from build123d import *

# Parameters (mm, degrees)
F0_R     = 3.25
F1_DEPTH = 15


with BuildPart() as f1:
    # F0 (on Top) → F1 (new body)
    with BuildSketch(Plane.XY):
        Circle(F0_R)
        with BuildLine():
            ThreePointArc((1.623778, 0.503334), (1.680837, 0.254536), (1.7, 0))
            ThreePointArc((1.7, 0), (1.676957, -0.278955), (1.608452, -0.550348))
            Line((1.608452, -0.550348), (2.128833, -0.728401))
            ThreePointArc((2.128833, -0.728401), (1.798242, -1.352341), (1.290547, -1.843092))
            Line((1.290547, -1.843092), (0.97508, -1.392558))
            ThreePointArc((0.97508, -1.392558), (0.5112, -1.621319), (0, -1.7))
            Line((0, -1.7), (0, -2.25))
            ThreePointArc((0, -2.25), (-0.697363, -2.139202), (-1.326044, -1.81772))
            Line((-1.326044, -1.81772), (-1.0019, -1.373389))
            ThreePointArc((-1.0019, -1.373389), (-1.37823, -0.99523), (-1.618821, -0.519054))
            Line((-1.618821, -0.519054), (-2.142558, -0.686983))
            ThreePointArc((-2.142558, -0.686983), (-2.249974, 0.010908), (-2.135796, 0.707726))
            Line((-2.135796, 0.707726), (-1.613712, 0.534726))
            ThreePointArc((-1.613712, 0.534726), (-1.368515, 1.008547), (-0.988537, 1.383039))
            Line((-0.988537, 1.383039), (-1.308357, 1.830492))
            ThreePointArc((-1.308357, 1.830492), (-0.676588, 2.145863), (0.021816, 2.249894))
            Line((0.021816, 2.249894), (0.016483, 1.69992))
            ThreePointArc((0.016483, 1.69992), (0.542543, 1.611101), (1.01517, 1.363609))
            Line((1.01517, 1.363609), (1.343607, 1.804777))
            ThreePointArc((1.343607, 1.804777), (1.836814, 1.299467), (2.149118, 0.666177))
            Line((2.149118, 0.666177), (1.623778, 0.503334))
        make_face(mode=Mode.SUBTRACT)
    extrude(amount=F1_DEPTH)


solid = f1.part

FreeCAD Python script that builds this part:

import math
import FreeCAD as App
import Part
import Sketcher
Q = App.Units.Quantity

doc = App.newDocument("Part")
body = doc.addObject("PartDesign::Body", "Body")

sketch1 = body.newObject("Sketcher::SketchObject", "Sketch")
sketch1.AttachmentSupport = (doc.getObject("XY_Plane"), [""])
sketch1.MapMode = "FlatFace"
sketch1.addGeometry(Part.Circle(App.Vector(0, 0, 0), App.Vector(0, 0, 1), 3.2), False)
sketch1.addGeometry(Part.LineSegment(App.Vector(2.1, 0.7, 0), App.Vector(1.6, 0.5, 0)), False)
sketch1.addGeometry(Part.ArcOfCircle(Part.Circle(App.Vector(0, 0, 0), App.Vector(0, 0, 1), 1.7), math.radians(0), math.radians(17.22)), False)
sketch1.addGeometry(Part.ArcOfCircle(Part.Circle(App.Vector(0, 0, 0), App.Vector(0, 0, 1), 1.7), math.radians(-18.89), math.radians(0)), False)
sketch1.addGeometry(Part.LineSegment(App.Vector(1.6, -0.6, 0), App.Vector(2.1, -0.7, 0)), False)
sketch1.addGeometry(Part.ArcOfCircle(Part.Circle(App.Vector(0, 0, 0), App.Vector(0, 0, 1), 2.2), math.radians(-55), math.radians(-19)), False)
sketch1.addGeometry(Part.LineSegment(App.Vector(1.3, -1.8, 0), App.Vector(1, -1.4, 0)), False)
sketch1.addGeometry(Part.ArcOfCircle(Part.Circle(App.Vector(0, 0, 0), App.Vector(0, 0, 1), 1.7), math.radians(-90), math.radians(-55)), False)
sketch1.addGeometry(Part.LineSegment(App.Vector(0, -1.7, 0), App.Vector(0, -2.2, 0)), False)
sketch1.addGeometry(Part.ArcOfCircle(Part.Circle(App.Vector(0, 0, 0), App.Vector(0, 0, 1), 2.2), math.radians(-126), math.radians(-90)), False)
sketch1.addGeometry(Part.LineSegment(App.Vector(-1.3, -1.8, 0), App.Vector(-1, -1.4, 0)), False)
sketch1.addGeometry(Part.ArcOfCircle(Part.Circle(App.Vector(0, 0, 0), App.Vector(0, 0, 1), 1.7), math.radians(-162), math.radians(-126)), False)
sketch1.addGeometry(Part.LineSegment(App.Vector(-1.6, -0.5, 0), App.Vector(-2.1, -0.7, 0)), False)
sketch1.addGeometry(Part.ArcOfCircle(Part.Circle(App.Vector(0, 0, 0), App.Vector(0, 0, 1), 2.2), math.radians(162), math.radians(198)), False)
sketch1.addGeometry(Part.LineSegment(App.Vector(-2.1, 0.7, 0), App.Vector(-1.6, 0.5, 0)), False)
sketch1.addGeometry(Part.ArcOfCircle(Part.Circle(App.Vector(0, 0, 0), App.Vector(0, 0, 1), 1.7), math.radians(126), math.radians(162)), False)
sketch1.addGeometry(Part.LineSegment(App.Vector(-1, 1.4, 0), App.Vector(-1.3, 1.8, 0)), False)
sketch1.addGeometry(Part.ArcOfCircle(Part.Circle(App.Vector(0, 0, 0), App.Vector(0, 0, 1), 2.2), math.radians(89), math.radians(126)), False)
sketch1.addGeometry(Part.LineSegment(App.Vector(0, 2.2, 0), App.Vector(0, 1.7, 0)), False)
sketch1.addGeometry(Part.ArcOfCircle(Part.Circle(App.Vector(0, 0, 0), App.Vector(0, 0, 1), 1.7), math.radians(53), math.radians(89)), False)
sketch1.addGeometry(Part.LineSegment(App.Vector(1, 1.4, 0), App.Vector(1.3, 1.8, 0)), False)
sketch1.addGeometry(Part.ArcOfCircle(Part.Circle(App.Vector(0, 0, 0), App.Vector(0, 0, 1), 2.2), math.radians(17), math.radians(53)), False)
sketch1.addConstraint(Sketcher.Constraint("Coincident", 1, 2, 2, 2))
sketch1.addConstraint(Sketcher.Constraint("Coincident", 2, 1, 3, 2))
sketch1.addConstraint(Sketcher.Constraint("Coincident", 3, 1, 4, 1))
sketch1.addConstraint(Sketcher.Constraint("Coincident", 4, 2, 5, 2))
sketch1.addConstraint(Sketcher.Constraint("Coincident", 5, 1, 6, 1))
sketch1.addConstraint(Sketcher.Constraint("Coincident", 6, 2, 7, 2))
sketch1.addConstraint(Sketcher.Constraint("Coincident", 7, 1, 8, 1))
sketch1.addConstraint(Sketcher.Constraint("Coincident", 8, 2, 9, 2))
sketch1.addConstraint(Sketcher.Constraint("Coincident", 9, 1, 10, 1))
sketch1.addConstraint(Sketcher.Constraint("Coincident", 10, 2, 11, 2))
sketch1.addConstraint(Sketcher.Constraint("Coincident", 11, 1, 12, 1))
sketch1.addConstraint(Sketcher.Constraint("Coincident", 12, 2, 13, 2))
sketch1.addConstraint(Sketcher.Constraint("Coincident", 13, 1, 14, 1))
sketch1.addConstraint(Sketcher.Constraint("Coincident", 14, 2, 15, 2))
sketch1.addConstraint(Sketcher.Constraint("Coincident", 15, 1, 16, 1))
sketch1.addConstraint(Sketcher.Constraint("Coincident", 16, 2, 17, 2))
sketch1.addConstraint(Sketcher.Constraint("Coincident", 17, 1, 18, 1))
sketch1.addConstraint(Sketcher.Constraint("Coincident", 18, 2, 19, 2))
sketch1.addConstraint(Sketcher.Constraint("Coincident", 19, 1, 20, 1))
sketch1.addConstraint(Sketcher.Constraint("Coincident", 20, 2, 21, 2))
sketch1.addConstraint(Sketcher.Constraint("Coincident", 21, 1, 1, 1))
sketch1.addConstraint(Sketcher.Constraint("Vertical", 8))
sketch1.addConstraint(Sketcher.Constraint("Coincident", 0, 3, -1, 1))
sketch1.addConstraint(Sketcher.Constraint("Coincident", 3, 3, -1, 1))
sketch1.addConstraint(Sketcher.Constraint("Coincident", 5, 3, -1, 1))
sketch1.addConstraint(Sketcher.Constraint("Coincident", 7, 3, -1, 1))
sketch1.addConstraint(Sketcher.Constraint("Coincident", 9, 3, -1, 1))
sketch1.addConstraint(Sketcher.Constraint("Coincident", 11, 3, -1, 1))
sketch1.addConstraint(Sketcher.Constraint("Coincident", 13, 3, -1, 1))
sketch1.addConstraint(Sketcher.Constraint("Coincident", 15, 3, -1, 1))
sketch1.addConstraint(Sketcher.Constraint("Coincident", 17, 3, -1, 1))
sketch1.addConstraint(Sketcher.Constraint("Coincident", 19, 3, -1, 1))
sketch1.addConstraint(Sketcher.Constraint("Coincident", 21, 3, -1, 1))
sketch1.addConstraint(Sketcher.Constraint("Equal", 3, 11))
sketch1.addConstraint(Sketcher.Constraint("Equal", 9, 13))
sketch1.addConstraint(Sketcher.Constraint("Equal", 17, 21))
sketch1.addConstraint(Sketcher.Constraint("PointOnObject", 2, 1, -1))
sketch1.addConstraint(Sketcher.Constraint("PointOnObject", 7, 1, -2))
sketch1.addConstraint(Sketcher.Constraint("Equal", 1, 4))
sketch1.addConstraint(Sketcher.Constraint("Equal", 4, 6))
sketch1.addConstraint(Sketcher.Constraint("Equal", 6, 10))
sketch1.addConstraint(Sketcher.Constraint("Equal", 12, 14))
sketch1.addConstraint(Sketcher.Constraint("Equal", 14, 16))
sketch1.addConstraint(Sketcher.Constraint("Equal", 16, 18))
sketch1.addConstraint(Sketcher.Constraint("Diameter", 0, Q("6.5 mm")))
sketch1.addConstraint(Sketcher.Constraint("Radius", 15, Q("1.7 mm")))
sketch1.addConstraint(Sketcher.Constraint("Radius", 17, Q("2.249998 mm")))
sketch1.addConstraint(Sketcher.Constraint("Radius", 2, Q("1.69996 mm")))
sketch1.addConstraint(Sketcher.Constraint("DistanceY", 14, 2, 13, 1, Q("0.173 mm")))
sketch1.addConstraint(Sketcher.Constraint("DistanceY", 4, 2, -1, 1, Q("0.728401 mm")))
sketch1.addConstraint(Sketcher.Constraint("DistanceX", 10, 2, -1, 1, Q("1.0019 mm")))
sketch1.addConstraint(Sketcher.Constraint("DistanceY", 5, 1, 2, 3, Q("1.843098 mm")))
sketch1.addConstraint(Sketcher.Constraint("DistanceY", 21, 1, 20, 2, Q("1.1386 mm")))
sketch1.addConstraint(Sketcher.Constraint("DistanceX", -1, 1, 3, 1, Q("1.608452 mm")))
sketch1.addConstraint(Sketcher.Constraint("DistanceX", -1, 1, 6, 2, Q("0.97508 mm")))
sketch1.addConstraint(Sketcher.Constraint("DistanceY", 9, 1, -1, 1, Q("1.81772 mm")))
sketch1.addConstraint(Sketcher.Constraint("DistanceX", 11, 1, -1, 1, Q("1.618821 mm")))
sketch1.addConstraint(Sketcher.Constraint("DistanceX", 12, 2, -1, 1, Q("2.142558 mm")))
sketch1.addConstraint(Sketcher.Constraint("DistanceY", -1, 1, 15, 1, Q("1.383039 mm")))
sketch1.addConstraint(Sketcher.Constraint("DistanceY", -1, 1, 18, 2, Q("1.69992 mm")))
sketch1.addConstraint(Sketcher.Constraint("DistanceX", -1, 1, 19, 1, Q("1.01517 mm")))
sketch1.addConstraint(Sketcher.Constraint("DistanceX", -1, 1, 21, 1, Q("2.149118 mm")))
sketch1.addConstraint(Sketcher.Constraint("DistanceX", 2, 3, 1, 2, Q("1.623738 mm")))
sketch1.addConstraint(Sketcher.Constraint("DistanceY", 11, 1, 13, 1, Q("1.22678 mm")))
sketch1.addConstraint(Sketcher.Constraint("DistanceX", 16, 2, 15, 1, Q("0.31982 mm")))
sketch1.addConstraint(Sketcher.Constraint("DistanceX", 17, 1, 20, 2, Q("1.321791 mm")))
pad1 = body.newObject("PartDesign::Pad", "Pad")
pad1.Profile = sketch1
pad1.Length = 15

doc.recompute()
